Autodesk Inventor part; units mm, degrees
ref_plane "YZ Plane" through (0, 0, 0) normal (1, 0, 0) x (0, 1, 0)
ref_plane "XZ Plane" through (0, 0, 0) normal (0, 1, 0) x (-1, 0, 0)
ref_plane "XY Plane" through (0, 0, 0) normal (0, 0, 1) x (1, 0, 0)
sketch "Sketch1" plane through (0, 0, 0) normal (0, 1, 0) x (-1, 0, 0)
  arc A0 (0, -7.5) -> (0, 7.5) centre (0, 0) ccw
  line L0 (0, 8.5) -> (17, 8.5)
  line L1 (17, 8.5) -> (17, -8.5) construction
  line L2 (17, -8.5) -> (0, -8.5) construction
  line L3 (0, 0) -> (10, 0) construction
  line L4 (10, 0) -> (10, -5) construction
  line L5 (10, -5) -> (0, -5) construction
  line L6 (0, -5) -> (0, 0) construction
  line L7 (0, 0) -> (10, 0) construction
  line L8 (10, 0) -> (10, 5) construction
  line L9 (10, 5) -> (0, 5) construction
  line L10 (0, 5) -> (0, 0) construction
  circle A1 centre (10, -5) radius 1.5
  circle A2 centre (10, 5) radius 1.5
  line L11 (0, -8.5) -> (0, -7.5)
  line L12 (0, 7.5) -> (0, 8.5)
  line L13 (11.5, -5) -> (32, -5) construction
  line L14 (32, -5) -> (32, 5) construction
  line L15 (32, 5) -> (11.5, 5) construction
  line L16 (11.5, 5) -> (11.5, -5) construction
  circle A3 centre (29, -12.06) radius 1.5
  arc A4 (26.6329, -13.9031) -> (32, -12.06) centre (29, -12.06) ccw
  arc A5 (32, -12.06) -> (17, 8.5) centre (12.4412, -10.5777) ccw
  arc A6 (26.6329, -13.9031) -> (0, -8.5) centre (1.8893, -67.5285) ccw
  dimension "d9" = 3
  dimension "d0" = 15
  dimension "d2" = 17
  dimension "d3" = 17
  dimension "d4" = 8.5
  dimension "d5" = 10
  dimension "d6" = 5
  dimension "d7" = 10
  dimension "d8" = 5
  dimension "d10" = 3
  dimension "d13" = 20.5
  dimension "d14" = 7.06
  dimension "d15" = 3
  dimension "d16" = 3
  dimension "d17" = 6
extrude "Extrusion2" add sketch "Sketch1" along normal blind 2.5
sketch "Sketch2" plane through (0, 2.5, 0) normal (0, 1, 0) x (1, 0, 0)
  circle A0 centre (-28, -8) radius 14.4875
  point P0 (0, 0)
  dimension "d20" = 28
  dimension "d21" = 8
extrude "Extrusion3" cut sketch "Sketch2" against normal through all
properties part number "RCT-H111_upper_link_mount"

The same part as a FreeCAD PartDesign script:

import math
import FreeCAD as App
import Part
import Sketcher
from FreeCAD import Vector

doc = App.newDocument("Part")
params = doc.addObject("Spreadsheet::Sheet", "Params")
for row, (alias, value) in enumerate([
    ("sketch1_diameter", "3 mm"),
    ("sketch1_radius", "3 mm"),
    ("sketch1_radius2", "7.5 mm"),
    ("sketch1_width", "17 mm"),
    ("pad1_length", "2.5 mm"),
], start=1):
    params.set(f"A{row}", alias)
    params.set(f"B{row}", "=" + value)
    params.setAlias(f"B{row}", alias)

body = doc.addObject("PartDesign::Body", "Body")

# Sketch on XZ plane
sketch1 = doc.addObject("Sketcher::SketchObject", "Sketch")
body.addObject(sketch1)
sketch1.AttachmentSupport = (doc.XZ_Plane, [""])
sketch1.MapMode = "FlatFace"
sketch1.addGeometry([
    Part.ArcOfCircle(Part.Circle(Vector(0, 0, 0), Vector(0, 0, 1), 7.5), math.radians(90), math.radians(270)),  # 0
    Part.LineSegment(Vector(0, -7.5, 0), Vector(0, -8.5, 0)),  # 1
    Part.ArcOfCircle(Part.Circle(Vector(-1.9, -67.5, 0), Vector(0, 0, 1), 59.1), math.radians(88), math.radians(115)),  # 2
    Part.ArcOfCircle(Part.Circle(Vector(-29, -12.1, 0), Vector(0, 0, 1), 3), math.radians(180), math.radians(322)),  # 3
    Part.ArcOfCircle(Part.Circle(Vector(-12.4, -10.6, 0), Vector(0, 0, 1), 19.6), math.radians(103), math.radians(184)),  # 4
    Part.LineSegment(Vector(-17, 8.5, 0), Vector(0, 8.5, 0)),  # 5
    Part.LineSegment(Vector(0, 8.5, 0), Vector(0, 7.5, 0)),  # 6
    Part.Circle(Vector(-10, -5, 0), Vector(0, 0, 1), 1.5),  # 7
    Part.Circle(Vector(-29, -12.1, 0), Vector(0, 0, 1), 1.5),  # 8
    Part.Circle(Vector(-10, 5, 0), Vector(0, 0, 1), 1.5),  # 9
], False)
sketch1.addConstraint([
    Sketcher.Constraint("Coincident", 0, 2, 1, 1),
    Sketcher.Constraint("Coincident", 1, 2, 2, 1),
    Sketcher.Constraint("Coincident", 2, 2, 3, 2),
    Sketcher.Constraint("Coincident", 3, 1, 4, 2),
    Sketcher.Constraint("Coincident", 4, 1, 5, 1),
    Sketcher.Constraint("Coincident", 5, 2, 6, 1),
    Sketcher.Constraint("Coincident", 6, 2, 0, 1),
    Sketcher.Constraint("Vertical", 1),
    Sketcher.Constraint("Horizontal", 5),
    Sketcher.Constraint("Vertical", 6),
    Sketcher.Constraint("Coincident", 0, 3, -1, 1),
    Sketcher.Constraint("Coincident", 8, 3, 3, 3),
    Sketcher.Constraint("Equal", 7, 8),
    Sketcher.Constraint("Equal", 8, 9),
    Sketcher.Constraint("Symmetric", 1, 2, 5, 2, -1, 1),
    Sketcher.Constraint("Symmetric", 7, 3, 9, 3, -1),
    Sketcher.Constraint("PointOnObject", 0, 2, -2),
    Sketcher.Constraint("Horizontal", 8, 3, 3, 1),
    Sketcher.Constraint("Diameter", 7, 3.0),
    Sketcher.Constraint("Radius", 3, 3.0),
    Sketcher.Constraint("Radius", 0, 7.5),
    Sketcher.Constraint("DistanceX", 5, 1, 5, 2, 17.0),
    Sketcher.Constraint("DistanceX", 7, 3, -1, 1, 10.0),
    Sketcher.Constraint("DistanceY", 7, 3, -1, 1, 5.0),
    Sketcher.Constraint("DistanceY", 1, 2, 5, 2, 17.0),
    Sketcher.Constraint("DistanceY", 3, 3, 7, 3, 7.06),
    Sketcher.Constraint("DistanceX", 3, 3, -1, 1, 29.0),
    Sketcher.Constraint("Radius", 4, 19.615),
    Sketcher.Constraint("Radius", 2, 59.0587),
    Sketcher.Constraint("DistanceX", 2, 2, -1, 1, 26.633),
])
sketch1.setExpression("Constraints[18]", "Params.sketch1_diameter")
sketch1.setExpression("Constraints[19]", "Params.sketch1_radius")
sketch1.setExpression("Constraints[20]", "Params.sketch1_radius2")
sketch1.setExpression("Constraints[21]", "Params.sketch1_width")
pad1 = doc.addObject("PartDesign::Pad", "Pad")
body.addObject(pad1)
pad1.Profile = sketch1
pad1.setExpression("Length", "Params.pad1_length")
pad1.Reversed = True

# Sketch on XZ plane
sketch2 = doc.addObject("Sketcher::SketchObject", "Sketch001")
body.addObject(sketch2)
sketch2.AttachmentSupport = (doc.XZ_Plane, [""])
sketch2.MapMode = "FlatFace"
sketch2.AttachmentOffset = App.Placement(Vector(0, 0, -2.5), App.Rotation())
sketch2.addGeometry(Part.Circle(Vector(-28, 8, 0), Vector(0, 0, 1), 14), False)
sketch2.addConstraint([
    Sketcher.Constraint("DistanceX", 0, 3, -1, 1, 28.0),
    Sketcher.Constraint("DistanceY", -1, 1, 0, 3, 8.0),
    Sketcher.Constraint("Diameter", 0, 28.975),
])
pocket1 = doc.addObject("PartDesign::Pocket", "Pocket")
body.addObject(pocket1)
pocket1.Profile = sketch2
pocket1.Type = "ThroughAll"
pocket1.Reversed = True

doc.recompute()
